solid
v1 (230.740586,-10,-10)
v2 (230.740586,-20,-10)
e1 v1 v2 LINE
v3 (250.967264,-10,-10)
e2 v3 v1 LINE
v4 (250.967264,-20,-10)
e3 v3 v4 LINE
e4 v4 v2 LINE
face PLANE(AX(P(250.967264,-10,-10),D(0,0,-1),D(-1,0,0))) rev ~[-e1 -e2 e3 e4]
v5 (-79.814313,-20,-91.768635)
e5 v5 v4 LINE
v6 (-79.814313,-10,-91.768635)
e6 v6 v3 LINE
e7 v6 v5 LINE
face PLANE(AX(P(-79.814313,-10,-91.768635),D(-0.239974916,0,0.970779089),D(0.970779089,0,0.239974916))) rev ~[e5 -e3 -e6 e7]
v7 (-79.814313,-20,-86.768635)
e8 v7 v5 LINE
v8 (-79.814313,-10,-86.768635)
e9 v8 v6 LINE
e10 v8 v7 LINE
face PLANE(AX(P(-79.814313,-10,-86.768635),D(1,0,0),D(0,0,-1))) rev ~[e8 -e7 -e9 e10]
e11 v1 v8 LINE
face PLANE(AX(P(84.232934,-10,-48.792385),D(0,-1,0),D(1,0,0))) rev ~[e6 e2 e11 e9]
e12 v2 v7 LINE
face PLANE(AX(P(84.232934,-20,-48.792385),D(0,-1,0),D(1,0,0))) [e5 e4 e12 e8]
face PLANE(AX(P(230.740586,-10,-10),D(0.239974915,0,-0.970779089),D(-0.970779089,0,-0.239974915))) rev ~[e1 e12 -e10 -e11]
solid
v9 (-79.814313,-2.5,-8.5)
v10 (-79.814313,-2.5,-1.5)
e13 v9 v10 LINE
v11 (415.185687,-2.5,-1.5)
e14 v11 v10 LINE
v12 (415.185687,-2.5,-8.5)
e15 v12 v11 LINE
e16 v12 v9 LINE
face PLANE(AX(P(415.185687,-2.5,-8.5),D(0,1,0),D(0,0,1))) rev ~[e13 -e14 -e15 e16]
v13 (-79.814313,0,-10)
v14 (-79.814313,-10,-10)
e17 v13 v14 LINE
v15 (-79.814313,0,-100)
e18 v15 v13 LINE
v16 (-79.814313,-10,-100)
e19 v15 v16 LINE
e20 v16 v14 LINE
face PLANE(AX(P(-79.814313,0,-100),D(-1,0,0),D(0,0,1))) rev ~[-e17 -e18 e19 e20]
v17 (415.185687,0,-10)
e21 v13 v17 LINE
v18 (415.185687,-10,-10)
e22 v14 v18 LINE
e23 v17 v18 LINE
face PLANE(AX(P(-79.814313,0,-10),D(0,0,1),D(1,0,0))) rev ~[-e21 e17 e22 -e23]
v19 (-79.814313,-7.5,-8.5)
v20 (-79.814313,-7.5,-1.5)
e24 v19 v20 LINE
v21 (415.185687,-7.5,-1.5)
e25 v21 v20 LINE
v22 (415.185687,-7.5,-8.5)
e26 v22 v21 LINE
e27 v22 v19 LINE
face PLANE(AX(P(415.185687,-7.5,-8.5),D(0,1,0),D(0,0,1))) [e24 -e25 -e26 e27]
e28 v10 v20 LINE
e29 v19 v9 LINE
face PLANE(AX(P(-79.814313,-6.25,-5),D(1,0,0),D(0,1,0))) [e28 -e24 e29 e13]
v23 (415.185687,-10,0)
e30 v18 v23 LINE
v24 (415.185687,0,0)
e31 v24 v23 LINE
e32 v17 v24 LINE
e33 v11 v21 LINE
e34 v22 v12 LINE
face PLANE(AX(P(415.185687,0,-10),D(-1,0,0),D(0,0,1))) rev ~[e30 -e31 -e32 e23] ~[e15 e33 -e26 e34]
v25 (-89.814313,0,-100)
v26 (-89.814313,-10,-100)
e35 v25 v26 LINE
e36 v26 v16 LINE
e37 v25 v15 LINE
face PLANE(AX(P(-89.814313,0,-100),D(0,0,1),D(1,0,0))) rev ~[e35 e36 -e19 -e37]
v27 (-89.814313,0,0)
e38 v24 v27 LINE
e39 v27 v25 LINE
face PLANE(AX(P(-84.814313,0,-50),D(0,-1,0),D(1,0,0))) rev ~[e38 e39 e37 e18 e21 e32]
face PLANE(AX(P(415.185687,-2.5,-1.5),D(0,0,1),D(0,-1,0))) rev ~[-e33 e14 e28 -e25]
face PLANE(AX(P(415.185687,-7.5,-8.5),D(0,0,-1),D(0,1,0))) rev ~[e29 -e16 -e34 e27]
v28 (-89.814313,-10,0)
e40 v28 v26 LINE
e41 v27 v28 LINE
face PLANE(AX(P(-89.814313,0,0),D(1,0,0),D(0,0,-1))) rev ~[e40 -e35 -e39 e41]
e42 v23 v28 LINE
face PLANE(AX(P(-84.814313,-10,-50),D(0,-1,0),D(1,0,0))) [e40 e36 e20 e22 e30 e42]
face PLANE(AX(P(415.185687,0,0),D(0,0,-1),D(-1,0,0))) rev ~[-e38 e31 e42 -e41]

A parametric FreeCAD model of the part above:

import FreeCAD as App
import Part
import Sketcher

V = App.Vector
Q = App.Units.Quantity


def add_polygon(sketch, points):
    """Adds a closed chain of lines whose ends are joined by coincident constraints."""
    first, n = sketch.GeometryCount, len(points)
    for a, b in zip(points, points[1:] + points[:1]):
        sketch.addGeometry(Part.LineSegment(App.Vector(*a, 0), App.Vector(*b, 0)), False)
    for i in range(n):
        sketch.addConstraint(Sketcher.Constraint("Coincident", first + i, 2, first + (i + 1) % n, 1))

doc = App.newDocument("Part")
body = doc.addObject("PartDesign::Body", "Body")

sketch1 = body.newObject("Sketcher::SketchObject", "Sketch")
sketch1.AttachmentSupport = (doc.getObject("XZ_Plane"), [""])
sketch1.MapMode = "FlatFace"
add_polygon(sketch1, [(-90, 0), (-90, -100), (-80, -100), (-80, -10), (415, -10), (415, 0)])
sketch1.addConstraint([
    Sketcher.Constraint("Vertical", 0),
    Sketcher.Constraint("Horizontal", 1),
    Sketcher.Constraint("Vertical", 2),
    Sketcher.Constraint("Horizontal", 3),
    Sketcher.Constraint("Vertical", 4),
    Sketcher.Constraint("Horizontal", 5),
    Sketcher.Constraint("PointOnObject", 4, 2, -1),
    Sketcher.Constraint("Equal", 1, 4),
    Sketcher.Constraint("DistanceX", 1, 1, 1, 2, Q("10 mm")),
    Sketcher.Constraint("DistanceX", 3, 1, 3, 2, Q("495 mm")),
    Sketcher.Constraint("DistanceY", 0, 2, 0, 1, Q("100 mm")),
    Sketcher.Constraint("DistanceX", 0, 2, -1, 1, Q("89.814313 mm")),
])
pad1 = body.newObject("PartDesign::Pad", "Pad")
pad1.Profile = sketch1
pad1.Length = 10

sketch2 = body.newObject("Sketcher::SketchObject", "Sketch001")
sketch2.AttachmentSupport = (doc.getObject("YZ_Plane"), [""])
sketch2.MapMode = "FlatFace"
sketch2.AttachmentOffset = App.Placement(V(0, 0, 415.185687), App.Rotation())
add_polygon(sketch2, [(-8, -2), (-8, -8), (-2, -8), (-2, -2)])
sketch2.addConstraint([
    Sketcher.Constraint("Vertical", 0),
    Sketcher.Constraint("Horizontal", 1),
    Sketcher.Constraint("Vertical", 2),
    Sketcher.Constraint("Horizontal", 3),
    Sketcher.Constraint("DistanceX", 1, 1, 1, 2, Q("5 mm")),
    Sketcher.Constraint("DistanceY", 0, 2, 0, 1, Q("7 mm")),
    Sketcher.Constraint("DistanceX", 0, 2, -1, 1, Q("7.5 mm")),
    Sketcher.Constraint("DistanceY", 0, 2, -1, 1, Q("8.5 mm")),
])
pocket1 = body.newObject("PartDesign::Pocket", "Pocket")
pocket1.Profile = sketch2
pocket1.Length = 495
body2 = doc.addObject("PartDesign::Body", "Body001")

sketch3 = body2.newObject("Sketcher::SketchObject", "Sketch002")
sketch3.AttachmentSupport = (doc.getObject("XZ_Plane001"), [""])
sketch3.MapMode = "FlatFace"
sketch3.AttachmentOffset = App.Placement(V(0, 0, 10), App.Rotation())
add_polygon(sketch3, [(231, -10), (-80, -87), (-80, -92), (251, -10)])
sketch3.addConstraint([
    Sketcher.Constraint("Vertical", 1),
    Sketcher.Constraint("Horizontal", 3),
    Sketcher.Constraint("Parallel", 0, 2),
    Sketcher.Constraint("DistanceY", 1, 2, 1, 1, Q("5 mm")),
    Sketcher.Constraint("DistanceY", 2, 2, -1, 1, Q("10 mm")),
    Sketcher.Constraint("DistanceX", 0, 2, 3, 2, Q("310.554899 mm")),
    Sketcher.Constraint("Distance", 0, Q("319.902749 mm")),
    Sketcher.Constraint("DistanceX", 0, 2, -1, 1, Q("79.814313 mm")),
])
pad2 = body2.newObject("PartDesign::Pad", "Pad001")
pad2.Profile = sketch3
pad2.Length = 10

doc.recompute()
